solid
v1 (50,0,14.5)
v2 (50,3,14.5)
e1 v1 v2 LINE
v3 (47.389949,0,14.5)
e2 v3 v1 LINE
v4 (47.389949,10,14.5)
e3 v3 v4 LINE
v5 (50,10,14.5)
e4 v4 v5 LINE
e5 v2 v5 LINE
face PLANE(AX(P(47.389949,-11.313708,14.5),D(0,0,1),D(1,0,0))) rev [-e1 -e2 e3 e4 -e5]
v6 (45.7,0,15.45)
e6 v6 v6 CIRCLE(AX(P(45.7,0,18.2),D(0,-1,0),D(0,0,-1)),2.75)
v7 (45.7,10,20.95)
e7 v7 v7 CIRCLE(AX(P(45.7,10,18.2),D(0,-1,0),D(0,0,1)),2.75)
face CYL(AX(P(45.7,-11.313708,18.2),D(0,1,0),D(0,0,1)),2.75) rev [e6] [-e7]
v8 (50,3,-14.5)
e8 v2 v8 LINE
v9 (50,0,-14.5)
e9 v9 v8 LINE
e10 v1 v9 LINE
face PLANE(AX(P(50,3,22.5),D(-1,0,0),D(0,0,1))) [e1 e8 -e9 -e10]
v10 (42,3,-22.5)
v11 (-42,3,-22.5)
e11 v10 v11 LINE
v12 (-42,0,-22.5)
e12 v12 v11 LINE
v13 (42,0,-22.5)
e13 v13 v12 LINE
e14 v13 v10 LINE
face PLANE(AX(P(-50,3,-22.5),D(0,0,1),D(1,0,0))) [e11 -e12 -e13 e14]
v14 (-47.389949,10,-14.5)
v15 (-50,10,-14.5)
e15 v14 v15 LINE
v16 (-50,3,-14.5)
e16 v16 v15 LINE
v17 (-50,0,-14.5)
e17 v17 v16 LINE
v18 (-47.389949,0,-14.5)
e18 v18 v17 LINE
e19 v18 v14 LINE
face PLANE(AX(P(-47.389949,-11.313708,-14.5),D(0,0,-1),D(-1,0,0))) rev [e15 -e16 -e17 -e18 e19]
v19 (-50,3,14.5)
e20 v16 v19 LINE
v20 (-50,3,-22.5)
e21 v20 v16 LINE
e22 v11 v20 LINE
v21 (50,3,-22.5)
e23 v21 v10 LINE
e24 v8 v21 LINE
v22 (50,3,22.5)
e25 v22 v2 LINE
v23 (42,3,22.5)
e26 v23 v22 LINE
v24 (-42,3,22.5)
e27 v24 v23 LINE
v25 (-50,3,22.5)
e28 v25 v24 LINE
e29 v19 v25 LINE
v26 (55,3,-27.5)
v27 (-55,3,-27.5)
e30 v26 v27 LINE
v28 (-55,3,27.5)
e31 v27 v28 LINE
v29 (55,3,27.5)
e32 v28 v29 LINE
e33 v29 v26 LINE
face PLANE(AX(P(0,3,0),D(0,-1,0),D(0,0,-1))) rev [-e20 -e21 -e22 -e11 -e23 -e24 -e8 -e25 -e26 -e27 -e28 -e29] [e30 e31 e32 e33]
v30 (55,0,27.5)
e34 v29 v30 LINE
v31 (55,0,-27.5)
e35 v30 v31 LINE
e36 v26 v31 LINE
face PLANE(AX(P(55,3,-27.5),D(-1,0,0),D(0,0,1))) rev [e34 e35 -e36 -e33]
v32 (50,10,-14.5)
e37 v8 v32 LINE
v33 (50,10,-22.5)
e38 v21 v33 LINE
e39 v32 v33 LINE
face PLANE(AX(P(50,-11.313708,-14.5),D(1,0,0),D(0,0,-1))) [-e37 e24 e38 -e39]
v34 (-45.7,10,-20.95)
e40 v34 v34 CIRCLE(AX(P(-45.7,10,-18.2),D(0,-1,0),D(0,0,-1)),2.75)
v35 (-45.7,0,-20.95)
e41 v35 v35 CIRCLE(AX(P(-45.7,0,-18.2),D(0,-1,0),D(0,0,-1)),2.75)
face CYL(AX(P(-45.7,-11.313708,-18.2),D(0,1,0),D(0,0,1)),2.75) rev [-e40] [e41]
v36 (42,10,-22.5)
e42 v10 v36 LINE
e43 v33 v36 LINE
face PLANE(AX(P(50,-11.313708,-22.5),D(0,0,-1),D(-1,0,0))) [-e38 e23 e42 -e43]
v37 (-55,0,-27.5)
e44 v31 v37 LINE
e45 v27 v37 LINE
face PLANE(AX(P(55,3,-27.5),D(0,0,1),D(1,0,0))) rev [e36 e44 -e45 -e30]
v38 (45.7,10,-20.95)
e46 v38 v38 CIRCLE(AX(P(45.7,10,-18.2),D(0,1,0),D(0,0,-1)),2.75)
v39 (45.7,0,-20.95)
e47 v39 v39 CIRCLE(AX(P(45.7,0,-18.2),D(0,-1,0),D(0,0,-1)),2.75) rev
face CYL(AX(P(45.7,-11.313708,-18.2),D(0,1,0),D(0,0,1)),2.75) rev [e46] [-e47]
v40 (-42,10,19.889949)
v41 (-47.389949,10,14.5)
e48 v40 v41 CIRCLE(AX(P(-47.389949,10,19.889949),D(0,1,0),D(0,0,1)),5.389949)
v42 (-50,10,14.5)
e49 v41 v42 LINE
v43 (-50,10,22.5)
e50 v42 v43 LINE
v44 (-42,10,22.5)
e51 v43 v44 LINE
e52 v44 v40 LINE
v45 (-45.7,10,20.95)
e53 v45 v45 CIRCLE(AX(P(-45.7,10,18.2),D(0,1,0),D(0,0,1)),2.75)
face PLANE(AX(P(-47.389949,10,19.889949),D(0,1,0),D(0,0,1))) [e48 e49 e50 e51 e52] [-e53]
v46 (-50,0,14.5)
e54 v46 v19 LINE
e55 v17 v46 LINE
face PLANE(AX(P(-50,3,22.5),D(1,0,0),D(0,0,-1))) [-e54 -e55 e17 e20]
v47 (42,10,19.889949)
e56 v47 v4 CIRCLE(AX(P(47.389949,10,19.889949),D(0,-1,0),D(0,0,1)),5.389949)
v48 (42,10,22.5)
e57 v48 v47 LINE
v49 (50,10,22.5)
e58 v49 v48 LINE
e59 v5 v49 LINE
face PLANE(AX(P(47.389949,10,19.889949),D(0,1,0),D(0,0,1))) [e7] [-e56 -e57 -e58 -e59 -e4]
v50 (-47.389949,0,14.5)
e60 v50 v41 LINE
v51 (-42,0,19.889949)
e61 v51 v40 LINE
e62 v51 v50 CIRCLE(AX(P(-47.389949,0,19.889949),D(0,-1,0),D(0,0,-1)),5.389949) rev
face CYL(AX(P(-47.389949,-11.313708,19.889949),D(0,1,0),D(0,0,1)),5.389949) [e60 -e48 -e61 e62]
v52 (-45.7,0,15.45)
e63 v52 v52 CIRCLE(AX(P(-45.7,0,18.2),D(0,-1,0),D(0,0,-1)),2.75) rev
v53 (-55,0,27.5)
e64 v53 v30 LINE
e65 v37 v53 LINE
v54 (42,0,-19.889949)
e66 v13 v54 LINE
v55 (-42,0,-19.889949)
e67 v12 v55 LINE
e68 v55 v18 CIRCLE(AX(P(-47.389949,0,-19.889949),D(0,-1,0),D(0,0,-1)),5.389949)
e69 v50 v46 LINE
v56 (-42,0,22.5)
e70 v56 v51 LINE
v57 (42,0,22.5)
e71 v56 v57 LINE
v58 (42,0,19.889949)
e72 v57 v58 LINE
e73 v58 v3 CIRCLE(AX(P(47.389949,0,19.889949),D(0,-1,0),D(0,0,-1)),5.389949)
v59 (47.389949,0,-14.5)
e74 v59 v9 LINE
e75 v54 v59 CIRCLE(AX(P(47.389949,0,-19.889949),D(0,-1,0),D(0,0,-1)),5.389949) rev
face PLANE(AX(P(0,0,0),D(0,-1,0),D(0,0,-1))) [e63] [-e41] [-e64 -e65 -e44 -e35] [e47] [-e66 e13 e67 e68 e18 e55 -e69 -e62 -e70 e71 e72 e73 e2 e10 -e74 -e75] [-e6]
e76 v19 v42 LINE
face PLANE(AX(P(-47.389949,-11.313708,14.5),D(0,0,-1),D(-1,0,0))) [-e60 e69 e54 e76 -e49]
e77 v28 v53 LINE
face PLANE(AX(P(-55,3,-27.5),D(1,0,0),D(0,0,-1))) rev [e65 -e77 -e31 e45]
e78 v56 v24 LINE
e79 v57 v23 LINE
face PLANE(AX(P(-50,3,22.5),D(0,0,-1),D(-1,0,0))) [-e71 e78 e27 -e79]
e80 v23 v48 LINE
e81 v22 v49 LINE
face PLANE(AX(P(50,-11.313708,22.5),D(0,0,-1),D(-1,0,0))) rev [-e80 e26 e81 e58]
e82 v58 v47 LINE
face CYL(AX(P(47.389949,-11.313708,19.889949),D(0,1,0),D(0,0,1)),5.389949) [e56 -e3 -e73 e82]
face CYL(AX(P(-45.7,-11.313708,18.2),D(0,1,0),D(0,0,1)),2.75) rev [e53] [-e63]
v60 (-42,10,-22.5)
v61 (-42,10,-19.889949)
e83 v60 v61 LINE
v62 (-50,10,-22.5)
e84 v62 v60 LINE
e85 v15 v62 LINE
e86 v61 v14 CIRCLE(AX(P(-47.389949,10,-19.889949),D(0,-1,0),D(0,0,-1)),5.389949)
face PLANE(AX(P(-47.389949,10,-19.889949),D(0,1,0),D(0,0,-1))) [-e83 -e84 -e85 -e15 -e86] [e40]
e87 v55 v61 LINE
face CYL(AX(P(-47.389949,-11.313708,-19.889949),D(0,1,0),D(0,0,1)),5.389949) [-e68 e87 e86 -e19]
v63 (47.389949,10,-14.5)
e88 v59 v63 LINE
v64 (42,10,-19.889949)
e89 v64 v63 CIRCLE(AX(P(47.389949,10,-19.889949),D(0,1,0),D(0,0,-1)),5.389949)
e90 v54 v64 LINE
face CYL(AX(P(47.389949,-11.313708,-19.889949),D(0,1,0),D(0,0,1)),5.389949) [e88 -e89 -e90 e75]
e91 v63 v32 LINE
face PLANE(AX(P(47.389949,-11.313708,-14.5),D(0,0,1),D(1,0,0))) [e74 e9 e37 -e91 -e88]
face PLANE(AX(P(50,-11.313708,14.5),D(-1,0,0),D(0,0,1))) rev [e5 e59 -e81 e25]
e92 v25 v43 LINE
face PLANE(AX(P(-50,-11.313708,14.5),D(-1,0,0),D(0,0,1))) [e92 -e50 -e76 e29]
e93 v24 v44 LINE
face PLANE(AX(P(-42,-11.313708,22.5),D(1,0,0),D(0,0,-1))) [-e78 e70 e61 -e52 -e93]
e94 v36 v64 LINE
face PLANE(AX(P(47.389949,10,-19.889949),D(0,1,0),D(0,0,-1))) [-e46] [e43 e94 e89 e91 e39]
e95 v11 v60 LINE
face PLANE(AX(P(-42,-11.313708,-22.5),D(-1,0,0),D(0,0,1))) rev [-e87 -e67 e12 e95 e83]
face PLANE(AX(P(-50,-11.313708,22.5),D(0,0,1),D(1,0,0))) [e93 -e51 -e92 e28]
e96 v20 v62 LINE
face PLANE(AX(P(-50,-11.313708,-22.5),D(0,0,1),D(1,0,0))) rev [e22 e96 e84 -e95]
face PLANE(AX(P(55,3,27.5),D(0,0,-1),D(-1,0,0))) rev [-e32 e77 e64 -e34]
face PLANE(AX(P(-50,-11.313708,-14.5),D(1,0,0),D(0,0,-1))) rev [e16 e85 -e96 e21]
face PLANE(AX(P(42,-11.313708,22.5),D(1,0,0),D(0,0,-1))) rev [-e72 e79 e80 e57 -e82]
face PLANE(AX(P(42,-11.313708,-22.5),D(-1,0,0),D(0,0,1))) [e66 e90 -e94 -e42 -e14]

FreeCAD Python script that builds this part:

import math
import FreeCAD as App
import Part
import Sketcher

V = App.Vector


def add_polygon(sketch, points):
    """Adds a closed chain of lines whose ends are joined by coincident constraints."""
    first, n = sketch.GeometryCount, len(points)
    for a, b in zip(points, points[1:] + points[:1]):
        sketch.addGeometry(Part.LineSegment(App.Vector(*a, 0), App.Vector(*b, 0)), False)
    for i in range(n):
        sketch.addConstraint(Sketcher.Constraint("Coincident", first + i, 2, first + (i + 1) % n, 1))

doc = App.newDocument("Part")
body = doc.addObject("PartDesign::Body", "Body")

# Sketch on XZ plane
sketch1 = body.newObject("Sketcher::SketchObject", "Sketch")
sketch1.AttachmentSupport = (doc.getObject("XZ_Plane"), [""])
sketch1.MapMode = "FlatFace"
add_polygon(sketch1, [(-55, -28), (-55, 28), (55, 28), (55, -28)])  # lines 0-3
add_polygon(sketch1, [(50, 22), (-50, 22), (-50, -22), (50, -22)])  # lines 4-7
sketch1.addConstraint(Sketcher.Constraint("Vertical", 0))
sketch1.addConstraint(Sketcher.Constraint("Horizontal", 1))
sketch1.addConstraint(Sketcher.Constraint("Vertical", 2))
sketch1.addConstraint(Sketcher.Constraint("Horizontal", 3))
sketch1.addConstraint(Sketcher.Constraint("Horizontal", 4))
sketch1.addConstraint(Sketcher.Constraint("Vertical", 5))
sketch1.addConstraint(Sketcher.Constraint("Horizontal", 6))
sketch1.addConstraint(Sketcher.Constraint("Vertical", 7))
sketch1.addConstraint(Sketcher.Constraint("Symmetric", 0, 2, 2, 2, -1, 1))
sketch1.addConstraint(Sketcher.Constraint("Symmetric", 4, 2, 6, 2, -1, 1))
sketch1.addConstraint(Sketcher.Constraint("DistanceX", 1, 1, 1, 2, 110.0))
sketch1.addConstraint(Sketcher.Constraint("DistanceX", 4, 2, 4, 1, 100.0))
sketch1.addConstraint(Sketcher.Constraint("DistanceY", 0, 1, 0, 2, 55.0))
sketch1.addConstraint(Sketcher.Constraint("DistanceY", 5, 2, 5, 1, 45.0))
pad1 = body.newObject("PartDesign::Pad", "Pad")
pad1.Profile = sketch1
pad1.Length = 3
pad1.Reversed = True

# Sketch on XZ plane
sketch2 = body.newObject("Sketcher::SketchObject", "Sketch001")
sketch2.AttachmentSupport = (doc.getObject("XZ_Plane"), [""])
sketch2.MapMode = "FlatFace"
sketch2.addGeometry(Part.LineSegment(V(-50, 22.5, 0), V(-42, 22.5, 0)), False)
sketch2.addGeometry(Part.LineSegment(V(-42, 22.5, 0), V(-42, 19.9, 0)), False)
sketch2.addGeometry(Part.ArcOfCircle(Part.Circle(V(-47.4, 19.9, 0), V(0, 0, 1), 5.4), math.radians(-90), math.radians(0)), False)
sketch2.addGeometry(Part.LineSegment(V(-47.4, 14.5, 0), V(-50, 14.5, 0)), False)
sketch2.addGeometry(Part.LineSegment(V(-50, 14.5, 0), V(-50, 22.5, 0)), False)
sketch2.addGeometry(Part.Circle(V(-45.7, 18.2, 0), V(0, 0, 1), 2.8), False)
sketch2.addConstraint(Sketcher.Constraint("Coincident", 0, 2, 1, 1))
sketch2.addConstraint(Sketcher.Constraint("Tangent", 1, 2, 2, 2))
sketch2.addConstraint(Sketcher.Constraint("Tangent", 2, 1, 3, 1))
sketch2.addConstraint(Sketcher.Constraint("Coincident", 3, 2, 4, 1))
sketch2.addConstraint(Sketcher.Constraint("Coincident", 4, 2, 0, 1))
sketch2.addConstraint(Sketcher.Constraint("Horizontal", 0))
sketch2.addConstraint(Sketcher.Constraint("Vertical", 1))
sketch2.addConstraint(Sketcher.Constraint("Horizontal", 3))
sketch2.addConstraint(Sketcher.Constraint("Vertical", 4))
sketch2.addConstraint(Sketcher.Constraint("Equal", 3, 1))
sketch2.addConstraint(Sketcher.Constraint("Diameter", 5, 5.5))
sketch2.addConstraint(Sketcher.Constraint("DistanceX", 0, 1, 0, 2, 8.0))
sketch2.addConstraint(Sketcher.Constraint("DistanceX", 0, 2, -1, 1, 42.0))
sketch2.addConstraint(Sketcher.Constraint("DistanceX", 5, 3, -1, 1, 45.7))
sketch2.addConstraint(Sketcher.Constraint("DistanceY", -1, 1, 5, 3, 18.2))
sketch2.addConstraint(Sketcher.Constraint("DistanceY", -1, 1, 0, 2, 22.5))
sketch2.addConstraint(Sketcher.Constraint("Radius", 2, 5.389949))
pad2 = body.newObject("PartDesign::Pad", "Pad001")
pad2.Profile = sketch2
pad2.Length = 10
pad2.Reversed = True
doc.recompute()

mirrored = body.newObject("PartDesign::Mirrored", "Mirrored")
mirrored.Originals = [pad2]
mirrored.MirrorPlane = (doc.getObject("XY_Plane"), [""])
body.Tip = mirrored
doc.recompute()

mirrored2 = body.newObject("PartDesign::Mirrored", "Mirrored001")
mirrored2.Originals = [pad2]
mirrored2.MirrorPlane = (doc.getObject("YZ_Plane"), [""])
body.Tip = mirrored2

# Sketch on XZ plane
sketch3 = body.newObject("Sketcher::SketchObject", "Sketch002")
sketch3.AttachmentSupport = (doc.getObject("XZ_Plane"), [""])
sketch3.MapMode = "FlatFace"
sketch3.addGeometry(Part.LineSegment(V(50, -22.5, 0), V(42, -22.5, 0)), False)
sketch3.addGeometry(Part.LineSegment(V(42, -22.5, 0), V(42, -19.9, 0)), False)
sketch3.addGeometry(Part.ArcOfCircle(Part.Circle(V(47.4, -19.9, 0), V(0, 0, 1), 5.4), math.radians(90), math.radians(180)), False)
sketch3.addGeometry(Part.LineSegment(V(47.4, -14.5, 0), V(50, -14.5, 0)), False)
sketch3.addGeometry(Part.LineSegment(V(50, -14.5, 0), V(50, -22.5, 0)), False)
sketch3.addGeometry(Part.Circle(V(45.7, -18.2, 0), V(0, 0, 1), 2.8), False)
sketch3.addConstraint(Sketcher.Constraint("Coincident", 0, 2, 1, 1))
sketch3.addConstraint(Sketcher.Constraint("Tangent", 1, 2, 2, 2))
sketch3.addConstraint(Sketcher.Constraint("Tangent", 2, 1, 3, 1))
sketch3.addConstraint(Sketcher.Constraint("Coincident", 3, 2, 4, 1))
sketch3.addConstraint(Sketcher.Constraint("Coincident", 4, 2, 0, 1))
sketch3.addConstraint(Sketcher.Constraint("Horizontal", 0))
sketch3.addConstraint(Sketcher.Constraint("Vertical", 1))
sketch3.addConstraint(Sketcher.Constraint("Horizontal", 3))
sketch3.addConstraint(Sketcher.Constraint("Vertical", 4))
sketch3.addConstraint(Sketcher.Constraint("Equal", 3, 1))
sketch3.addConstraint(Sketcher.Constraint("Diameter", 5, 5.5))
sketch3.addConstraint(Sketcher.Constraint("DistanceX", 0, 2, 0, 1, 8.0))
sketch3.addConstraint(Sketcher.Constraint("DistanceX", -1, 1, 0, 2, 42.0))
sketch3.addConstraint(Sketcher.Constraint("DistanceX", -1, 1, 5, 3, 45.7))
sketch3.addConstraint(Sketcher.Constraint("DistanceY", 5, 3, -1, 1, 18.2))
sketch3.addConstraint(Sketcher.Constraint("DistanceY", 0, 2, -1, 1, 22.5))
sketch3.addConstraint(Sketcher.Constraint("Radius", 2, 5.389949))
pad3 = body.newObject("PartDesign::Pad", "Pad002")
pad3.Profile = sketch3
pad3.Length = 10
pad3.Reversed = True

doc.recompute()
